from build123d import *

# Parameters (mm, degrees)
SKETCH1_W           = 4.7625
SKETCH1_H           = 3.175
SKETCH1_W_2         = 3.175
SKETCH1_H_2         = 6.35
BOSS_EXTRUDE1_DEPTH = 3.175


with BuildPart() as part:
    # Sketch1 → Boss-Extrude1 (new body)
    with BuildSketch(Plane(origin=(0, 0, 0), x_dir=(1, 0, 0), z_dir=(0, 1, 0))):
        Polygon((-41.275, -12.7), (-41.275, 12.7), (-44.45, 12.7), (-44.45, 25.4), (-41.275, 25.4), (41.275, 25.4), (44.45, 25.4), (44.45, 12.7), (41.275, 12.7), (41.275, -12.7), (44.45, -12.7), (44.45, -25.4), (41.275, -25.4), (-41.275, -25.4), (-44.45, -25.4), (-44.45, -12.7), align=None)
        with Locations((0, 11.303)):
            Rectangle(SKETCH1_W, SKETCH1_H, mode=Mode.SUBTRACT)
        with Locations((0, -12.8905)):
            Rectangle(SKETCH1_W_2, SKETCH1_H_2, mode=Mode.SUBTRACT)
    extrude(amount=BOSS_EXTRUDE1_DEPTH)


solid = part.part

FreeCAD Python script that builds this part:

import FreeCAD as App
import Part
import Sketcher
from FreeCAD import Vector
Q = App.Units.Quantity


def add_polygon(sketch, points):
    """Adds a closed chain of lines whose ends are joined by coincident constraints."""
    first, n = sketch.GeometryCount, len(points)
    for a, b in zip(points, points[1:] + points[:1]):
        sketch.addGeometry(Part.LineSegment(App.Vector(*a, 0), App.Vector(*b, 0)), False)
    for i in range(n):
        sketch.addConstraint(Sketcher.Constraint("Coincident", first + i, 2, first + (i + 1) % n, 1))

doc = App.newDocument("Part")
params = doc.addObject("Spreadsheet::Sheet", "Params")
for row, (alias, value) in enumerate([
    ("sketch1_height", "1 in"),
    ("sketch1_width", "3.5 in"),
    ("sketch1_height2", "0.5 in"),
    ("sketch1_height3", "0.25 in"),
    ("sketch1_width2", "0.125 in"),
    ("pad1_length", "0.125 in"),
], start=1):
    params.set(f"A{row}", alias)
    params.set(f"B{row}", "=" + value)
    params.setAlias(f"B{row}", alias)

body = doc.addObject("PartDesign::Body", "Body")

# Sketch on XZ plane
sketch1 = body.newObject("Sketcher::SketchObject", "Sketch")
sketch1.AttachmentSupport = (doc.getObject("XZ_Plane"), [""])
sketch1.MapMode = "FlatFace"
add_polygon(sketch1, [(-41.3, -12.7), (-41.3, 12.7), (-44.5, 12.7), (-44.5, 25.4), (44.5, 25.4), (44.5, 12.7), (41.3, 12.7), (41.3, -12.7), (44.5, -12.7), (44.5, -25.4), (-44.5, -25.4), (-44.5, -12.7)])  # lines 0-11
add_polygon(sketch1, [(-1.6, 16.1), (-1.6, 9.7), (1.6, 9.7), (1.6, 16.1)])  # lines 12-15
add_polygon(sketch1, [(-2.4, -9.7), (-2.4, -12.9), (2.4, -12.9), (2.4, -9.7)])  # lines 16-19
sketch1.addConstraint([
    Sketcher.Constraint("Vertical", 0),
    Sketcher.Constraint("Horizontal", 1),
    Sketcher.Constraint("Vertical", 2),
    Sketcher.Constraint("Horizontal", 3),
    Sketcher.Constraint("Vertical", 4),
    Sketcher.Constraint("Horizontal", 5),
    Sketcher.Constraint("Vertical", 6),
    Sketcher.Constraint("Horizontal", 7),
    Sketcher.Constraint("Vertical", 8),
    Sketcher.Constraint("Horizontal", 9),
    Sketcher.Constraint("Vertical", 10),
    Sketcher.Constraint("Horizontal", 11),
    Sketcher.Constraint("Vertical", 12),
    Sketcher.Constraint("Horizontal", 13),
    Sketcher.Constraint("Vertical", 14),
    Sketcher.Constraint("Horizontal", 15),
    Sketcher.Constraint("Vertical", 16),
    Sketcher.Constraint("Horizontal", 17),
    Sketcher.Constraint("Vertical", 18),
    Sketcher.Constraint("Horizontal", 19),
    Sketcher.Constraint("Symmetric", 0, 2, 6, 2, -1, 1),
    Sketcher.Constraint("Symmetric", 2, 2, 8, 2, -1, 1),
    Sketcher.Constraint("Symmetric", 4, 2, 10, 2, -1, 1),
    Sketcher.Constraint("Symmetric", 1, 2, 4, 2, -2),
    Sketcher.Constraint("Equal", 11, 13),
    Sketcher.Constraint("Equal", 15, 16),
    Sketcher.Constraint("DistanceY", 0, 1, 0, 2, Q("1 in")),
    Sketcher.Constraint("DistanceX", 3, 1, 3, 2, Q("3.5 in")),
    Sketcher.Constraint("DistanceY", 2, 1, 2, 2, Q("0.5 in")),
    Sketcher.Constraint("DistanceY", 12, 2, 12, 1, Q("0.25 in")),
    Sketcher.Constraint("DistanceX", 1, 2, 1, 1, Q("0.125 in")),
    Sketcher.Constraint("DistanceX", 17, 1, 17, 2, Q("0.1875 in")),
    Sketcher.Constraint("DistanceY", 16, 2, 12, 2, Q("0.89 in")),
    Sketcher.Constraint("DistanceX", 12, 2, -1, 1, Q("0.0625 in")),
    Sketcher.Constraint("DistanceX", 16, 2, -1, 1, Q("0.09375 in")),
    Sketcher.Constraint("DistanceY", -1, 1, 12, 2, Q("0.3825 in")),
])
sketch1.setExpression("Constraints[46]", "Params.sketch1_height")
sketch1.setExpression("Constraints[47]", "Params.sketch1_width")
sketch1.setExpression("Constraints[48]", "Params.sketch1_height2")
sketch1.setExpression("Constraints[49]", "Params.sketch1_height3")
sketch1.setExpression("Constraints[50]", "Params.sketch1_width2")
pad1 = body.newObject("PartDesign::Pad", "Pad")
pad1.Profile = sketch1
pad1.setExpression("Length", "Params.pad1_length")
pad1.Reversed = True

doc.recompute()
